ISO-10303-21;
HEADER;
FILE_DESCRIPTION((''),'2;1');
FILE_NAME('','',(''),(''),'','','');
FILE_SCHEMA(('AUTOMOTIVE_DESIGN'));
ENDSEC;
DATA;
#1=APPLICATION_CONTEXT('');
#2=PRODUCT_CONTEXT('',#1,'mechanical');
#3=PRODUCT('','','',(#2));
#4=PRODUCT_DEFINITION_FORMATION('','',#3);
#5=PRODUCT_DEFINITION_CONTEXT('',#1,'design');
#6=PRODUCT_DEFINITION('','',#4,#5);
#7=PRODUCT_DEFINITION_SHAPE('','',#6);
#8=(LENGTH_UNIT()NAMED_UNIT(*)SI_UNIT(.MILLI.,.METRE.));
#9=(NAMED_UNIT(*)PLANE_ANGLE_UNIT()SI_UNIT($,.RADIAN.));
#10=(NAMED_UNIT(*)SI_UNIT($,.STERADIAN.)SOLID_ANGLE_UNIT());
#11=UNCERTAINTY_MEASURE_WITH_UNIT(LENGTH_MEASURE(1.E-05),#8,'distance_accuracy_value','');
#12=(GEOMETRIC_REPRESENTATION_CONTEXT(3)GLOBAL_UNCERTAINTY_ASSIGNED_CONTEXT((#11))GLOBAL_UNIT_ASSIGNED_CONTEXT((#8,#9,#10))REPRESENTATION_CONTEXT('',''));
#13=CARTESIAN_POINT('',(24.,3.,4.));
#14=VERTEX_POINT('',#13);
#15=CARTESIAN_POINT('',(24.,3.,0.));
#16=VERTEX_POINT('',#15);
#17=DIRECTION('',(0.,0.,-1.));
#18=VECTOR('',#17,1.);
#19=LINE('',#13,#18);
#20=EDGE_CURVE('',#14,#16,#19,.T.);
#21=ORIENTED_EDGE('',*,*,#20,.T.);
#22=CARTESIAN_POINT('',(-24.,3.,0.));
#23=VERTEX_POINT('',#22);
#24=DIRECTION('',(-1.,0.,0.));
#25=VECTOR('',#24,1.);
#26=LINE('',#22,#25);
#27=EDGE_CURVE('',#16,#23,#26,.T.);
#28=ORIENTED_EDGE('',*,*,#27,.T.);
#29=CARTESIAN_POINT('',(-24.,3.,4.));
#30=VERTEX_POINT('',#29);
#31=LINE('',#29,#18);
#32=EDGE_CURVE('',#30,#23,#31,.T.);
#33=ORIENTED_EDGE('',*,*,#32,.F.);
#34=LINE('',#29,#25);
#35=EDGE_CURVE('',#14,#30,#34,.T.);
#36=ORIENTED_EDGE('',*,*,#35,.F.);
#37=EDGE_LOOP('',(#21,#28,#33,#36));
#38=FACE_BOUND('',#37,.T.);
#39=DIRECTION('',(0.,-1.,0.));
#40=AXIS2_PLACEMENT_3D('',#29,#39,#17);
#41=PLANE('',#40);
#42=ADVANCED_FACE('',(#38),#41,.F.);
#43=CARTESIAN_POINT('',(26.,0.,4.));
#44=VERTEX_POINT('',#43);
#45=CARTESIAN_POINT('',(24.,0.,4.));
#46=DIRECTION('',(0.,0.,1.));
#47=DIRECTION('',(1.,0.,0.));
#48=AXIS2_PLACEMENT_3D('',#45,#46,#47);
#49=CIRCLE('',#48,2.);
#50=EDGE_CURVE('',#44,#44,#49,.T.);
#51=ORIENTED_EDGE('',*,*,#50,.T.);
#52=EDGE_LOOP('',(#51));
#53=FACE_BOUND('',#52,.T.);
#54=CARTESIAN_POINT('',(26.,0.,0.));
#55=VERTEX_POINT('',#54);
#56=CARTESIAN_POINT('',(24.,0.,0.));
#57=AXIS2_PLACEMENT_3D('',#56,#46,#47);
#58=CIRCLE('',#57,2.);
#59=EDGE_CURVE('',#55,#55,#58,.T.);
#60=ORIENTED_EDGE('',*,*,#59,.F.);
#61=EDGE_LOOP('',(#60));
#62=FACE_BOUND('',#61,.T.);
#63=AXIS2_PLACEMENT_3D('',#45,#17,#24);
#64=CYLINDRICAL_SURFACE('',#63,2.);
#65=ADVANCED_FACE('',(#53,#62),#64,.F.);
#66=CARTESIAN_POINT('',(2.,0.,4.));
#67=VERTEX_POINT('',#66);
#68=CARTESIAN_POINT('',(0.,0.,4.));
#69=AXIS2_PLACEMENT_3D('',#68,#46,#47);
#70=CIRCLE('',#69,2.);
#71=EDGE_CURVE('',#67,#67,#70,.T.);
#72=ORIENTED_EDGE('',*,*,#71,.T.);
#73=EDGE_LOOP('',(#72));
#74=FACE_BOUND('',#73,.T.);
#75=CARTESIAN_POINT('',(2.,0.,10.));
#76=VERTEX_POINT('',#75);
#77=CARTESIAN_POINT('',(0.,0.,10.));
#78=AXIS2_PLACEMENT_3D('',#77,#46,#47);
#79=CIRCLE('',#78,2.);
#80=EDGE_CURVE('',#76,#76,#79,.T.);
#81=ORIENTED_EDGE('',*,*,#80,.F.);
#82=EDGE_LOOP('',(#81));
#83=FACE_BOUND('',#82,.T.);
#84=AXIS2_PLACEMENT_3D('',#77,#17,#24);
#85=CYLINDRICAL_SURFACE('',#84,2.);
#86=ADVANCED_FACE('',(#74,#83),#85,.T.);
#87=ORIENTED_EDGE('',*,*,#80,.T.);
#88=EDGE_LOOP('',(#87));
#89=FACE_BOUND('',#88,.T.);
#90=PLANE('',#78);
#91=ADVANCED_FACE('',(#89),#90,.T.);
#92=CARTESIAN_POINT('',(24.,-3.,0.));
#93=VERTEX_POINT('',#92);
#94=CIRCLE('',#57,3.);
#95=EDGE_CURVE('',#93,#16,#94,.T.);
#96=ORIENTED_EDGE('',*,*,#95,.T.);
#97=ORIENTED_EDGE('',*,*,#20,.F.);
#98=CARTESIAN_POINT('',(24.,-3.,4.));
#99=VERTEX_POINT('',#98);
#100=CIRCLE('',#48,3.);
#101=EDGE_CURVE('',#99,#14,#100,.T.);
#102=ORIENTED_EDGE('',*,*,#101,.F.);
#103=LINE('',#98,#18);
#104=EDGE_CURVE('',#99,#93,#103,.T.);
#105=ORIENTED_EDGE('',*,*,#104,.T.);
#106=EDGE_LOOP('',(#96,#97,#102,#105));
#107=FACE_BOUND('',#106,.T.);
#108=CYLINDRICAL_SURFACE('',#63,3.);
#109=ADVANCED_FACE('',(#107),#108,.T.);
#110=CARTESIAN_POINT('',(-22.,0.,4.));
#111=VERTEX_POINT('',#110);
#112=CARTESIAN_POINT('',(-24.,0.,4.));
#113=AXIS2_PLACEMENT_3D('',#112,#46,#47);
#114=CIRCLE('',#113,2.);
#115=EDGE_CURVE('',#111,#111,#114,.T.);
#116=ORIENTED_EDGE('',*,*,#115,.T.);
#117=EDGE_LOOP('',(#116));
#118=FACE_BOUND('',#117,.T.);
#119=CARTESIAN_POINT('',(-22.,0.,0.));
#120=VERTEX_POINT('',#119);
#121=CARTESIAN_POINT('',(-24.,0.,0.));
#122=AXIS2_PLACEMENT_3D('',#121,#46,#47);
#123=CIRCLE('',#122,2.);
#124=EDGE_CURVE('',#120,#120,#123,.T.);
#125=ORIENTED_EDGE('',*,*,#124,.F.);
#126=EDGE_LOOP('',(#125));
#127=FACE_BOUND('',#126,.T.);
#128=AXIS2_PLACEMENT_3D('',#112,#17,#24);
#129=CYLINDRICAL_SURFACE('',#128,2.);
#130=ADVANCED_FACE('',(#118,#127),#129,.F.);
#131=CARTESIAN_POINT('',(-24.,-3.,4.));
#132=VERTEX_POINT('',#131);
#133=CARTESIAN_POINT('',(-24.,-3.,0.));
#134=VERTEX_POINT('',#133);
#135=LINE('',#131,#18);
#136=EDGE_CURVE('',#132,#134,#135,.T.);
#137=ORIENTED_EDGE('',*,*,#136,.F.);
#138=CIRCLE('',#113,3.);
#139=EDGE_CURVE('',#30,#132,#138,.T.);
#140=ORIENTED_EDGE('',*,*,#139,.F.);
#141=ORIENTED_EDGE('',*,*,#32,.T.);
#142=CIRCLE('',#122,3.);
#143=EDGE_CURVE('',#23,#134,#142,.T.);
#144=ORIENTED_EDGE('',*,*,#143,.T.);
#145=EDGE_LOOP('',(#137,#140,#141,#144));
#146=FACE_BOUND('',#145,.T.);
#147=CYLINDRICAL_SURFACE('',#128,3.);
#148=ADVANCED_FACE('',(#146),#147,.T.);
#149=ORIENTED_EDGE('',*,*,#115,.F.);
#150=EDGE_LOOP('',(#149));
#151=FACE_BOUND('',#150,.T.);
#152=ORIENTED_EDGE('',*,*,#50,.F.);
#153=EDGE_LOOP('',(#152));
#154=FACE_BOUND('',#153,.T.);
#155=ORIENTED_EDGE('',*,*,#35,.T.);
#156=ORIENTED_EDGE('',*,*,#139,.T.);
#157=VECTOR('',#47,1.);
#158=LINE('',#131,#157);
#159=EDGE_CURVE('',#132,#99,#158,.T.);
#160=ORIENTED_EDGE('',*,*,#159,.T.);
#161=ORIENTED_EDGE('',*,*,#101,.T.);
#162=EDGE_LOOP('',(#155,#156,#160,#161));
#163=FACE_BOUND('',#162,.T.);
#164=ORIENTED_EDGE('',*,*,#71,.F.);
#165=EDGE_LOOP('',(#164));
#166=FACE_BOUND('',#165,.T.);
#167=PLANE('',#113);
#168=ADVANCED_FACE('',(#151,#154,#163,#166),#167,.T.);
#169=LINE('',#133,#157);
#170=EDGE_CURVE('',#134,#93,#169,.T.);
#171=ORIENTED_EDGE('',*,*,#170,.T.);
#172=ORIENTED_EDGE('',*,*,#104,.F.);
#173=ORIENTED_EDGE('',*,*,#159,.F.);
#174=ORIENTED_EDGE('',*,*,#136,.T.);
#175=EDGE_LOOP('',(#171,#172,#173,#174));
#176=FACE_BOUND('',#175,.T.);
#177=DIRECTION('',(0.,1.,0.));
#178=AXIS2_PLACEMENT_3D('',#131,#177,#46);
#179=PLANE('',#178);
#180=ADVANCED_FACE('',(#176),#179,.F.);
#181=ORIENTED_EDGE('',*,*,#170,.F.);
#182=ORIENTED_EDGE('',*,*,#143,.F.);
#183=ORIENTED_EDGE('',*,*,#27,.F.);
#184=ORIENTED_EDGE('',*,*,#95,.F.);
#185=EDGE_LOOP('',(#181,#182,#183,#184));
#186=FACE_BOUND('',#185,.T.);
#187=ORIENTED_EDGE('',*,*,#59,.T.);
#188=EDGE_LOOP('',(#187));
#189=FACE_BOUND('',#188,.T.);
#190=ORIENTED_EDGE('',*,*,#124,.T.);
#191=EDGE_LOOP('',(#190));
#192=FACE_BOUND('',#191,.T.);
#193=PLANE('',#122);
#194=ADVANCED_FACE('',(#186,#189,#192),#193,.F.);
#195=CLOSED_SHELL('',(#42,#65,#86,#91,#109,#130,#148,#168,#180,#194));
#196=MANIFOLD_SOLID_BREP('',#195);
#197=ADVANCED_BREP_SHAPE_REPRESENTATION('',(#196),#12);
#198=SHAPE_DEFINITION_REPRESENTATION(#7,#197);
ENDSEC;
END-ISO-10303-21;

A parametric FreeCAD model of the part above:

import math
import FreeCAD as App
import Part
import Sketcher

doc = App.newDocument("Part")
body = doc.addObject("PartDesign::Body", "Body")

sketch1 = body.newObject("Sketcher::SketchObject", "Sketch")
sketch1.AttachmentSupport = (doc.getObject("XY_Plane"), [""])
sketch1.MapMode = "FlatFace"
sketch1.addGeometry([
    Part.LineSegment(App.Vector(24, 3, 0), App.Vector(-24, 3, 0)),
    Part.ArcOfCircle(Part.Circle(App.Vector(-24, 0, 0), App.Vector(0, 0, 1), 3), math.radians(90), math.radians(270)),
    Part.LineSegment(App.Vector(-24, -3, 0), App.Vector(24, -3, 0)),
    Part.ArcOfCircle(Part.Circle(App.Vector(24, 0, 0), App.Vector(0, 0, 1), 3), math.radians(-90), math.radians(90)),
    Part.Circle(App.Vector(24, 0, 0), App.Vector(0, 0, 1), 2),
    Part.Circle(App.Vector(0, 0, 0), App.Vector(0, 0, 1), 2),
    Part.Circle(App.Vector(-24, 0, 0), App.Vector(0, 0, 1), 2),
], False)
sketch1.addConstraint([
    Sketcher.Constraint("Tangent", 0, 2, 1, 1),
    Sketcher.Constraint("Tangent", 1, 2, 2, 1),
    Sketcher.Constraint("Tangent", 2, 2, 3, 1),
    Sketcher.Constraint("Tangent", 3, 2, 0, 1),
    Sketcher.Constraint("Horizontal", 0),
    Sketcher.Constraint("Horizontal", 2),
    Sketcher.Constraint("Coincident", 5, 3, -1, 1),
    Sketcher.Constraint("Coincident", 4, 3, 3, 3),
    Sketcher.Constraint("Coincident", 6, 3, 1, 3),
    Sketcher.Constraint("Equal", 4, 5),
    Sketcher.Constraint("Equal", 5, 6),
    Sketcher.Constraint("Symmetric", 1, 3, 3, 3, -1, 1),
    Sketcher.Constraint("Diameter", 4, 4.0),
    Sketcher.Constraint("Radius", 1, 3.0),
    Sketcher.Constraint("DistanceX", 0, 2, 0, 1, 48.0),
])
pad1 = body.newObject("PartDesign::Pad", "Pad")
pad1.Profile = sketch1
pad1.Length = 4

sketch2 = body.newObject("Sketcher::SketchObject", "Sketch001")
sketch2.AttachmentSupport = (doc.getObject("XY_Plane"), [""])
sketch2.MapMode = "FlatFace"
sketch2.addGeometry(Part.Circle(App.Vector(0, 0, 0), App.Vector(0, 0, 1), 2), False)
sketch2.addConstraint([
    Sketcher.Constraint("Coincident", 0, 3, -1, 1),
    Sketcher.Constraint("Diameter", 0, 4.0),
])
pad2 = body.newObject("PartDesign::Pad", "Pad001")
pad2.Profile = sketch2
pad2.Length = 10

doc.recompute()
